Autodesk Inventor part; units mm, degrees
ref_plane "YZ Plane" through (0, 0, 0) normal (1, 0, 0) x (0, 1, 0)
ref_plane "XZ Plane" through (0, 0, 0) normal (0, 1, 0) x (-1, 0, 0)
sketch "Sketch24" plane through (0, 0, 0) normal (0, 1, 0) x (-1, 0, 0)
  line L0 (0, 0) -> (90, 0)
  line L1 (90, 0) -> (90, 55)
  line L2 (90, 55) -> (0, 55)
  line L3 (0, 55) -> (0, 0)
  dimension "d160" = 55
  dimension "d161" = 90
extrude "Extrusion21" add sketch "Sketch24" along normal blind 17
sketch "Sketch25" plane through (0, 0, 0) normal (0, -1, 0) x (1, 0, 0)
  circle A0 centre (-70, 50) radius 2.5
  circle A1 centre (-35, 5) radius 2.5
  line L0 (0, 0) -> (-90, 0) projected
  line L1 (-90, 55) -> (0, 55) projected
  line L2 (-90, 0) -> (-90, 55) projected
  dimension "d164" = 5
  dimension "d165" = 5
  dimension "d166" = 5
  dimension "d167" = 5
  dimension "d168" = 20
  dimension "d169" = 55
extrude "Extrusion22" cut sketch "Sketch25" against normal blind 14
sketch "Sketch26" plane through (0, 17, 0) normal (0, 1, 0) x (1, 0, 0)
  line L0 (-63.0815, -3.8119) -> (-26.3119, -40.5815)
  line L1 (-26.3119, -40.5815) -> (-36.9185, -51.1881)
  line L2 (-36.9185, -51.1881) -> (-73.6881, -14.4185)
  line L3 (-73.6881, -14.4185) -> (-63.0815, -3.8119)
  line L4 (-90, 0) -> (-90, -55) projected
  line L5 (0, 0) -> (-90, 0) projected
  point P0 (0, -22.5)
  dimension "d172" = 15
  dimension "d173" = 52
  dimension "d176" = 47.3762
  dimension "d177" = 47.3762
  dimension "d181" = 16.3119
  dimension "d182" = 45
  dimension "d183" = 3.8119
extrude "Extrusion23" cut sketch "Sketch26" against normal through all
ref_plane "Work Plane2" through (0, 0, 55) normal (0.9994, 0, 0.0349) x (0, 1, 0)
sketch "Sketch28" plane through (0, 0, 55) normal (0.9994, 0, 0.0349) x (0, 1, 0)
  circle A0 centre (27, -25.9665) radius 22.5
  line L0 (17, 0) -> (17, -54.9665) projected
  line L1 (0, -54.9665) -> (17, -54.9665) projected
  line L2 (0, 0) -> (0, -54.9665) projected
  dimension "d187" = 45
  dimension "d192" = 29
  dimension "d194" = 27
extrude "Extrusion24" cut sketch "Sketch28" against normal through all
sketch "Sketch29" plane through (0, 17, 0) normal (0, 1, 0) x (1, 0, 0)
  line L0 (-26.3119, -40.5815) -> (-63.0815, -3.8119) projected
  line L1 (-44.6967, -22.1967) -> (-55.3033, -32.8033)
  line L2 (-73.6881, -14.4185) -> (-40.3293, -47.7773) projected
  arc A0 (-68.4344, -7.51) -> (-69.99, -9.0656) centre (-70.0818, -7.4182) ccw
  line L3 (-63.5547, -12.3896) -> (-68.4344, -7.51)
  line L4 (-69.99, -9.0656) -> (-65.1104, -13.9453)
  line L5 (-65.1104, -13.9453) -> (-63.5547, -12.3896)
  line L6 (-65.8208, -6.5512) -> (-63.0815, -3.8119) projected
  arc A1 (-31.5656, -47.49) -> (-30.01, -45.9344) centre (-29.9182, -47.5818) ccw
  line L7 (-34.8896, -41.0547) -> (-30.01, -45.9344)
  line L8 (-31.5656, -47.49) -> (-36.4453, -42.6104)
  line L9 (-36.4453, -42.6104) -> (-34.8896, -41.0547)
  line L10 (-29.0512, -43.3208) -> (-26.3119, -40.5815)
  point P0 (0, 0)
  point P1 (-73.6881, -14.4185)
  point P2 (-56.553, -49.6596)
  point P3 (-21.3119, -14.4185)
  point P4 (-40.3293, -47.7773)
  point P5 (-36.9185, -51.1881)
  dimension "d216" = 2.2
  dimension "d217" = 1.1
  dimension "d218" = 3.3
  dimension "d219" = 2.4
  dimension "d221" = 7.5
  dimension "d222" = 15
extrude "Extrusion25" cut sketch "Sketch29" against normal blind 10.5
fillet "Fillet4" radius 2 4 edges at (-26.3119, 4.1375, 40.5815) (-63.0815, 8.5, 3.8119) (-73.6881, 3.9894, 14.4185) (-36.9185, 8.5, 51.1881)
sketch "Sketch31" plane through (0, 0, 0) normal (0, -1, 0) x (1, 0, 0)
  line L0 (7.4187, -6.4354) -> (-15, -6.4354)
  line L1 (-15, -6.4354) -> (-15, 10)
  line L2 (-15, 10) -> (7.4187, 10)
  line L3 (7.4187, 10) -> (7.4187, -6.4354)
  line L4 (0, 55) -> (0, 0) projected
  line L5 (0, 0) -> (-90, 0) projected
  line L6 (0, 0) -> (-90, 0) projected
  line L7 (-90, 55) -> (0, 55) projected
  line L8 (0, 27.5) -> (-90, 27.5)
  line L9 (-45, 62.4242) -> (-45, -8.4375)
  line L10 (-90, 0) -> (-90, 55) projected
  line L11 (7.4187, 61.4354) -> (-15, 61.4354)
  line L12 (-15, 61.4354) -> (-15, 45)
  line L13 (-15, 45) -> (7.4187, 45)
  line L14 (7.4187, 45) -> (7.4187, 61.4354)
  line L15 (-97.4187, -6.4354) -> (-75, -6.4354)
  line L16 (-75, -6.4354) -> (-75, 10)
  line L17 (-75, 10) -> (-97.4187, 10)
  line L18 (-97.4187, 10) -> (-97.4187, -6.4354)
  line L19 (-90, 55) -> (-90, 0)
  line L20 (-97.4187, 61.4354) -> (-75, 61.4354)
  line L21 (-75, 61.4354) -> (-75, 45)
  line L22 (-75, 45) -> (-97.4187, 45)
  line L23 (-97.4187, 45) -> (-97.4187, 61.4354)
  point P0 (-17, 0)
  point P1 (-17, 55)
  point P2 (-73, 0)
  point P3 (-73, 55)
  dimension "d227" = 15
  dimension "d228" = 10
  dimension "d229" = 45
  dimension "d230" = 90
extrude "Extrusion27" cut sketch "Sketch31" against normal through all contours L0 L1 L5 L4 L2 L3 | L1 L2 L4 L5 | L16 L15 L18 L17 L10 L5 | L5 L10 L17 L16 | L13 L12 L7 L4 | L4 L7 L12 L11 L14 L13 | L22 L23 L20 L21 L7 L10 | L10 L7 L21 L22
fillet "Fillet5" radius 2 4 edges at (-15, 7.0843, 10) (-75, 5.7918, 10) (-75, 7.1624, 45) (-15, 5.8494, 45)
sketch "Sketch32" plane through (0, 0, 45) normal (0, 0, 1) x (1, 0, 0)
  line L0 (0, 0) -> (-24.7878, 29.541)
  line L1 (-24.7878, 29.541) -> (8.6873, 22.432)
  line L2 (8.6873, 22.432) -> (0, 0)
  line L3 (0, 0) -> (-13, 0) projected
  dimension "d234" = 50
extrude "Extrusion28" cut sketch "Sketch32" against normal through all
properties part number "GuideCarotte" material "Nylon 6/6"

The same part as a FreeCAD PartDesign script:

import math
import FreeCAD as App
import Part
import Sketcher
from FreeCAD import Vector
Q = App.Units.Quantity


def edges_at(feature, points):
    """Names of the edges that pass closest to the given points."""
    edges = feature.Shape.Edges
    near = lambda p: min(range(len(edges)), key=lambda i: edges[i].distToShape(Part.Vertex(*p))[0])
    return sorted({f"Edge{near(p) + 1}" for p in points})


def add_polygon(sketch, points):
    """Adds a closed chain of lines whose ends are joined by coincident constraints."""
    first, n = sketch.GeometryCount, len(points)
    for a, b in zip(points, points[1:] + points[:1]):
        sketch.addGeometry(Part.LineSegment(App.Vector(*a, 0), App.Vector(*b, 0)), False)
    for i in range(n):
        sketch.addConstraint(Sketcher.Constraint("Coincident", first + i, 2, first + (i + 1) % n, 1))

doc = App.newDocument("Part")
params = doc.addObject("Spreadsheet::Sheet", "Params")
for row, (alias, value) in enumerate([
    ("sketch1_width", "90 mm"),
    ("sketch1_height", "55 mm"),
    ("pad1_length", "17 mm"),
    ("sketch2_diameter", "5 mm"),
    ("pocket1_length", "14 mm"),
    ("sketch3_length", "52 mm"),
    ("sketch3_length2", "15 mm"),
    ("sketch4_diameter", "45 mm"),
    ("sketch5_radius", "1.65 mm"),
    ("sketch5_length", "2.2 mm"),
    ("pocket4_length", "10.5 mm"),
    ("fillet_radius", "2 mm"),
    ("fillet2_radius", "2 mm"),
], start=1):
    params.set(f"A{row}", alias)
    params.set(f"B{row}", "=" + value)
    params.setAlias(f"B{row}", alias)

body = doc.addObject("PartDesign::Body", "Body")

sketch1 = body.newObject("Sketcher::SketchObject", "Sketch")
sketch1.AttachmentSupport = (doc.getObject("XZ_Plane"), [""])
sketch1.MapMode = "FlatFace"
add_polygon(sketch1, [(0, 55), (0, 0), (-90, 0), (-90, 55)])
sketch1.addConstraint([
    Sketcher.Constraint("Vertical", 0),
    Sketcher.Constraint("Horizontal", 1),
    Sketcher.Constraint("Vertical", 2),
    Sketcher.Constraint("Horizontal", 3),
    Sketcher.Constraint("Coincident", 0, 2, -1, 1),
    Sketcher.Constraint("DistanceX", 1, 2, 1, 1, Q("90 mm")),
    Sketcher.Constraint("DistanceY", 0, 2, 0, 1, Q("55 mm")),
])
sketch1.setExpression("Constraints[9]", "Params.sketch1_width")
sketch1.setExpression("Constraints[10]", "Params.sketch1_height")
pad1 = body.newObject("PartDesign::Pad", "Pad")
pad1.Profile = sketch1
pad1.setExpression("Length", "Params.pad1_length")
pad1.Reversed = True

sketch2 = body.newObject("Sketcher::SketchObject", "Sketch001")
sketch2.AttachmentSupport = (doc.getObject("XZ_Plane"), [""])
sketch2.MapMode = "FlatFace"
sketch2.addGeometry([
    Part.Circle(Vector(-70, 50, 0), Vector(0, 0, 1), 2.5),
    Part.Circle(Vector(-35, 5, 0), Vector(0, 0, 1), 2.5),
], False)
sketch2.addConstraint([
    Sketcher.Constraint("Equal", 0, 1),
    Sketcher.Constraint("Diameter", 0, Q("5 mm")),
    Sketcher.Constraint("DistanceY", -1, 1, 1, 3, Q("5 mm")),
    Sketcher.Constraint("DistanceX", 0, 3, -1, 1, Q("70 mm")),
    Sketcher.Constraint("DistanceY", -1, 1, 0, 3, Q("50 mm")),
    Sketcher.Constraint("DistanceX", 1, 3, -1, 1, Q("35 mm")),
])
sketch2.setExpression("Constraints[1]", "Params.sketch2_diameter")
pocket1 = body.newObject("PartDesign::Pocket", "Pocket")
pocket1.Profile = sketch2
pocket1.setExpression("Length", "Params.pocket1_length")

sketch3 = body.newObject("Sketcher::SketchObject", "Sketch002")
sketch3.AttachmentSupport = (doc.getObject("XZ_Plane"), [""])
sketch3.MapMode = "FlatFace"
sketch3.AttachmentOffset = App.Placement(Vector(0, 0, -17), App.Rotation())
add_polygon(sketch3, [(-26, 41), (-63, 4), (-74, 14), (-37, 51)])
sketch3.addConstraint([
    Sketcher.Constraint("Perpendicular", 0, 1),
    Sketcher.Constraint("Perpendicular", 1, 2),
    Sketcher.Constraint("Perpendicular", 2, 3),
    Sketcher.Constraint("Angle", 2, Q("45 deg")),
    Sketcher.Constraint("Distance", 0, Q("52 mm")),
    Sketcher.Constraint("Distance", 1, Q("15 mm")),
    Sketcher.Constraint("DistanceY", -1, 1, 0, 2, Q("3.812 mm")),
    Sketcher.Constraint("DistanceX", 1, 2, -1, 1, Q("73.688 mm")),
])
sketch3.setExpression("Constraints[8]", "Params.sketch3_length")
sketch3.setExpression("Constraints[9]", "Params.sketch3_length2")
pocket2 = body.newObject("PartDesign::Pocket", "Pocket001")
pocket2.Profile = sketch3
pocket2.Type = "ThroughAll"
pocket2.Reversed = True

sketch4 = body.newObject("Sketcher::SketchObject", "Sketch003")
sketch4.Placement = App.Placement(Vector(0, 0, 55), App.Rotation(Vector(0, 1, 0), Vector(-0.034899497, 0, 0.999390827), Vector(0.999390827, 0, 0.034899497), "ZXY"))
sketch4.addGeometry(Part.Circle(Vector(27, -26, 0), Vector(0, 0, 1), 22), False)
sketch4.addConstraint([
    Sketcher.Constraint("Diameter", 0, Q("45 mm")),
    Sketcher.Constraint("DistanceX", -1, 1, 0, 3, Q("27 mm")),
    Sketcher.Constraint("DistanceY", 0, 3, -1, 1, Q("25.9665 mm")),
])
sketch4.setExpression("Constraints[0]", "Params.sketch4_diameter")
pocket3 = body.newObject("PartDesign::Pocket", "Pocket002")
pocket3.Profile = sketch4
pocket3.Type = "ThroughAll"

sketch5 = body.newObject("Sketcher::SketchObject", "Sketch004")
sketch5.AttachmentSupport = (doc.getObject("XZ_Plane"), [""])
sketch5.MapMode = "FlatFace"
sketch5.AttachmentOffset = App.Placement(Vector(0, 0, -17), App.Rotation())
sketch5.addGeometry([
    Part.LineSegment(Vector(-63.6, 12.4, 0), Vector(-68.4, 7.5, 0)),
    Part.ArcOfCircle(Part.Circle(Vector(-70.1, 7.4, 0), Vector(0, 0, 1), 1.6), math.radians(87), math.radians(363)),
    Part.LineSegment(Vector(-70, 9.1, 0), Vector(-65.1, 13.9, 0)),
    Part.LineSegment(Vector(-65.1, 13.9, 0), Vector(-63.6, 12.4, 0)),
    Part.LineSegment(Vector(-36.4, 42.6, 0), Vector(-31.6, 47.5, 0)),
    Part.ArcOfCircle(Part.Circle(Vector(-29.9, 47.6, 0), Vector(0, 0, 1), 1.6), math.radians(-93), math.radians(183)),
    Part.LineSegment(Vector(-30, 45.9, 0), Vector(-34.9, 41.1, 0)),
    Part.LineSegment(Vector(-34.9, 41.1, 0), Vector(-36.4, 42.6, 0)),
], False)
sketch5.addConstraint([
    Sketcher.Constraint("Coincident", 0, 2, 1, 2),
    Sketcher.Constraint("Coincident", 1, 1, 2, 1),
    Sketcher.Constraint("Coincident", 2, 2, 3, 1),
    Sketcher.Constraint("Coincident", 3, 2, 0, 1),
    Sketcher.Constraint("Coincident", 4, 2, 5, 2),
    Sketcher.Constraint("Coincident", 5, 1, 6, 1),
    Sketcher.Constraint("Coincident", 6, 2, 7, 1),
    Sketcher.Constraint("Coincident", 7, 2, 4, 1),
    Sketcher.Constraint("Equal", 1, 5),
    Sketcher.Constraint("Parallel", 0, 2),
    Sketcher.Constraint("Perpendicular", 2, 3),
    Sketcher.Constraint("Perpendicular", 3, 4),
    Sketcher.Constraint("Parallel", 4, 6),
    Sketcher.Constraint("Perpendicular", 6, 7),
    Sketcher.Constraint("Equal", 0, 2),
    Sketcher.Constraint("Equal", 2, 4),
    Sketcher.Constraint("Equal", 4, 6),
    Sketcher.Constraint("Equal", 3, 7),
    Sketcher.Constraint("Radius", 1, Q("1.65 mm")),
    Sketcher.Constraint("Distance", 3, Q("2.2 mm")),
    Sketcher.Constraint("Angle", 0, Q("-135.0006 deg")),
    Sketcher.Constraint("DistanceY", -1, 1, 0, 2, Q("7.51 mm")),
    Sketcher.Constraint("DistanceX", 1, 1, -1, 1, Q("69.99 mm")),
    Sketcher.Constraint("DistanceY", -1, 1, 4, 2, Q("47.49 mm")),
    Sketcher.Constraint("DistanceX", 5, 1, -1, 1, Q("30.01 mm")),
    Sketcher.Constraint("DistanceX", 0, 2, 2, 2, Q("3.324 mm")),
])
sketch5.setExpression("Constraints[18]", "Params.sketch5_radius")
sketch5.setExpression("Constraints[19]", "Params.sketch5_length")
pocket4 = body.newObject("PartDesign::Pocket", "Pocket003")
pocket4.Profile = sketch5
pocket4.setExpression("Length", "Params.pocket4_length")
pocket4.Reversed = True
doc.recompute()

fillet = body.newObject("PartDesign::Fillet", "Fillet")
fillet.Base = (pocket4, edges_at(pocket4, [
    (-26.312, 4.138, 40.581),
    (-63.081, 8.5, 3.812),
    (-73.688, 3.989, 14.418),
    (-36.919, 8.5, 51.188),
]))
fillet.setExpression("Radius", "Params.fillet_radius")

sketch6 = body.newObject("Sketcher::SketchObject", "Sketch005")
sketch6.AttachmentSupport = (doc.getObject("XZ_Plane"), [""])
sketch6.MapMode = "FlatFace"
add_polygon(sketch6, [(-15, -6), (7, -6), (7, 10), (-15, 10)])
add_polygon(sketch6, [(-75, -6), (-75, 10), (-97, 10), (-97, -6)])
add_polygon(sketch6, [(-15, 45), (7, 45), (7, 61), (-15, 61)])
add_polygon(sketch6, [(-97, 45), (-75, 45), (-75, 61), (-97, 61)])
sketch6.addConstraint([
    Sketcher.Constraint("Horizontal", 0),
    Sketcher.Constraint("Vertical", 1),
    Sketcher.Constraint("Horizontal", 2),
    Sketcher.Constraint("Vertical", 3),
    Sketcher.Constraint("Vertical", 4),
    Sketcher.Constraint("Horizontal", 5),
    Sketcher.Constraint("Vertical", 6),
    Sketcher.Constraint("Horizontal", 7),
    Sketcher.Constraint("Horizontal", 8),
    Sketcher.Constraint("Vertical", 9),
    Sketcher.Constraint("Horizontal", 10),
    Sketcher.Constraint("Vertical", 11),
    Sketcher.Constraint("Horizontal", 12),
    Sketcher.Constraint("Vertical", 13),
    Sketcher.Constraint("Horizontal", 14),
    Sketcher.Constraint("Vertical", 15),
    Sketcher.Constraint("Horizontal", 2, 2, 4, 2),
    Sketcher.Constraint("Horizontal", 3, 2, 6, 2),
    Sketcher.Constraint("Horizontal", 11, 2, 12, 2),
    Sketcher.Constraint("Horizontal", 10, 2, 13, 2),
    Sketcher.Constraint("Vertical", 1, 2, 8, 2),
    Sketcher.Constraint("Vertical", 3, 2, 10, 2),
    Sketcher.Constraint("Vertical", 7, 2, 12, 2),
    Sketcher.Constraint("Vertical", 6, 2, 14, 2),
    Sketcher.Constraint("Equal", 2, 5),
    Sketcher.Constraint("Equal", 6, 9),
    Sketcher.Constraint("DistanceY", -1, 1, 1, 2, Q("10 mm")),
    Sketcher.Constraint("DistanceX", 2, 2, -1, 1, Q("15 mm")),
    Sketcher.Constraint("DistanceY", -1, 1, 8, 2, Q("45 mm")),
    Sketcher.Constraint("DistanceX", 4, 2, -1, 1, Q("75 mm")),
    Sketcher.Constraint("DistanceX", 0, 1, 0, 2, Q("22.4187 mm")),
    Sketcher.Constraint("DistanceY", 1, 1, 1, 2, Q("16.4354 mm")),
])
pocket5 = body.newObject("PartDesign::Pocket", "Pocket004")
pocket5.Profile = sketch6
pocket5.Type = "ThroughAll"
doc.recompute()

fillet2 = body.newObject("PartDesign::Fillet", "Fillet001")
fillet2.Base = (pocket5, edges_at(pocket5, [
    (-15, 7.084, 10),
    (-75, 5.792, 10),
    (-75, 7.162, 45),
    (-15, 5.849, 45),
]))
fillet2.setExpression("Radius", "Params.fillet2_radius")

sketch7 = body.newObject("Sketcher::SketchObject", "Sketch006")
sketch7.AttachmentSupport = (doc.getObject("XY_Plane"), [""])
sketch7.MapMode = "FlatFace"
sketch7.AttachmentOffset = App.Placement(Vector(0, 0, 45), App.Rotation())
add_polygon(sketch7, [(-25, 30), (0, 0), (9, 22)])
sketch7.addConstraint([
    Sketcher.Constraint("Coincident", 0, 2, -1, 1),
    Sketcher.Constraint("Angle", 0, Q("-50 deg")),
    Sketcher.Constraint("Angle", 1, Q("68.83 deg")),
    Sketcher.Constraint("Angle", 2, Q("168.0104 deg")),
    Sketcher.Constraint("Distance", 0, Q("38.563 mm")),
])
pocket6 = body.newObject("PartDesign::Pocket", "Pocket005")
pocket6.Profile = sketch7
pocket6.Type = "ThroughAll"

doc.recompute()
